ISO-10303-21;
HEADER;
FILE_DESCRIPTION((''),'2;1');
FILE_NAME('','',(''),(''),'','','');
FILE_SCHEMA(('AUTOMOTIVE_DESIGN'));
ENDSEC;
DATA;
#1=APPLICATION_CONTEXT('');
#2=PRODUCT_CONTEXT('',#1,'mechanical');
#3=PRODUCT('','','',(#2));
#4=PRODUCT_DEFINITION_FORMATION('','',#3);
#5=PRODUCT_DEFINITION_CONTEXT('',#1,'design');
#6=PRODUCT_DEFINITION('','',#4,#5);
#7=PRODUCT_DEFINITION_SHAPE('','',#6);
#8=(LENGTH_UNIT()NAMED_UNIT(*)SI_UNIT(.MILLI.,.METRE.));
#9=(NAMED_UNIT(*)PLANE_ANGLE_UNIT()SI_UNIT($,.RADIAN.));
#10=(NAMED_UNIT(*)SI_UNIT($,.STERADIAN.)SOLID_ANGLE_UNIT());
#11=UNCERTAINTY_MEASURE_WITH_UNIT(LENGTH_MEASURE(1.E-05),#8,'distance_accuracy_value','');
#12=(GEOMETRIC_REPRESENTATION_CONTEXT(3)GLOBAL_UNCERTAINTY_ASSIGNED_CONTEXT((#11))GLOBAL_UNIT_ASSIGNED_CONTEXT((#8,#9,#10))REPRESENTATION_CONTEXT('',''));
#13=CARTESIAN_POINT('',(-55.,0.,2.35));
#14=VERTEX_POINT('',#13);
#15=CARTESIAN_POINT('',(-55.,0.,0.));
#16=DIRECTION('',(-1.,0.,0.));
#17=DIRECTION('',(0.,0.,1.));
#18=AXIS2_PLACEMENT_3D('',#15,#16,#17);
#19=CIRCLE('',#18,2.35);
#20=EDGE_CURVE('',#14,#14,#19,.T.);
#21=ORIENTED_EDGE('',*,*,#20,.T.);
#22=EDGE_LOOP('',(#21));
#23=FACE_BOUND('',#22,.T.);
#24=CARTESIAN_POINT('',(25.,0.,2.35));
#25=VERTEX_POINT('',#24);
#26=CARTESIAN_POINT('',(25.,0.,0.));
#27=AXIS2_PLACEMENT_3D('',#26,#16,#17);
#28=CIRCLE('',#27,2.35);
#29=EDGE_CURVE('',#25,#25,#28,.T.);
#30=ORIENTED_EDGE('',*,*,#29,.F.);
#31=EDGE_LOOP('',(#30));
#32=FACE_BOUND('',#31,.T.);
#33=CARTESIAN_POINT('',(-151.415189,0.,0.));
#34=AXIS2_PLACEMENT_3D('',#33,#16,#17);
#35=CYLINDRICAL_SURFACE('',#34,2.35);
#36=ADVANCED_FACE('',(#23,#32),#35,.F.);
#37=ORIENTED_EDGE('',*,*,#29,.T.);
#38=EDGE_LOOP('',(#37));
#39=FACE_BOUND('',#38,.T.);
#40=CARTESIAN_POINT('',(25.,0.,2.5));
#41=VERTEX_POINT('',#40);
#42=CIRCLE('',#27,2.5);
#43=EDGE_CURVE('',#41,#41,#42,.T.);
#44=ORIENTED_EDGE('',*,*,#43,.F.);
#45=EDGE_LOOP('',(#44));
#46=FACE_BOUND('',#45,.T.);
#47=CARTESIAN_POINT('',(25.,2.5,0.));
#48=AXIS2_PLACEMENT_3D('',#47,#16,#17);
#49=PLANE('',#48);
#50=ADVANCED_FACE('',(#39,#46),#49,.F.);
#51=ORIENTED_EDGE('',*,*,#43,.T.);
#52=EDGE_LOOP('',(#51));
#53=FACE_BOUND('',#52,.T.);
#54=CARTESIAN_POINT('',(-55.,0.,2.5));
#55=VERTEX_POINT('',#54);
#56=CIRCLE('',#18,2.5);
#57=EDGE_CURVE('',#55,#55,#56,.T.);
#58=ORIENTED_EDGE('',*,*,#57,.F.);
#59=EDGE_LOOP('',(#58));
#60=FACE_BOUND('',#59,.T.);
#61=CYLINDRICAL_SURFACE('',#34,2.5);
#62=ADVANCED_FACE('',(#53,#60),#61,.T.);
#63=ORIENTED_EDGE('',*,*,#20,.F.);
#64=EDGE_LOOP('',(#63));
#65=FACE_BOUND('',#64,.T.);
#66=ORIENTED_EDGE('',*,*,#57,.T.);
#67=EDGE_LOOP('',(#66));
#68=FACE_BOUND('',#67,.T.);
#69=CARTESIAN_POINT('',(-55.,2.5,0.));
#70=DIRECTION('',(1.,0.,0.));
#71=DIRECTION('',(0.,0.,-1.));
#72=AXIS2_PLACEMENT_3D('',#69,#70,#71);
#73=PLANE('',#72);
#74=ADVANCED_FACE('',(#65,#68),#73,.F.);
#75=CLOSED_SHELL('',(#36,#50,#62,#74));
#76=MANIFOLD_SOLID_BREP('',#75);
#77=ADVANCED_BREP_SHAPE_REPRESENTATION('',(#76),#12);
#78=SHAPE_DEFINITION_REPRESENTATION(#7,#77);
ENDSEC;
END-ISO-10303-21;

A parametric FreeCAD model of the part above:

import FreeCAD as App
import Part
import Sketcher

V = App.Vector

doc = App.newDocument("Part")
body = doc.addObject("PartDesign::Body", "Body")

# Sketch on XY plane
sketch1 = doc.addObject("Sketcher::SketchObject", "Sketch")
body.addObject(sketch1)
sketch1.AttachmentSupport = (doc.XY_Plane, [""])
sketch1.MapMode = "FlatFace"
sketch1.addGeometry([
    Part.LineSegment(V(-55, 2.5, 0), V(-55, 2.35, 0)),
    Part.LineSegment(V(-55, 2.35, 0), V(25, 2.35, 0)),
    Part.LineSegment(V(25, 2.35, 0), V(25, 2.5, 0)),
    Part.LineSegment(V(25, 2.5, 0), V(-55, 2.5, 0)),
], False)
sketch1.addConstraint([
    Sketcher.Constraint("Coincident", 0, 2, 1, 1),
    Sketcher.Constraint("Coincident", 1, 2, 2, 1),
    Sketcher.Constraint("Coincident", 2, 2, 3, 1),
    Sketcher.Constraint("Coincident", 3, 2, 0, 1),
    Sketcher.Constraint("Vertical", 0),
    Sketcher.Constraint("Horizontal", 1),
    Sketcher.Constraint("Vertical", 2),
    Sketcher.Constraint("Horizontal", 3),
    Sketcher.Constraint("DistanceX", 1, 1, 1, 2, 80.0),
    Sketcher.Constraint("DistanceX", 0, 2, -1, 1, 55.0),
    Sketcher.Constraint("DistanceY", 0, 2, 0, 1, 0.15),
    Sketcher.Constraint("DistanceY", -1, 1, 2, 2, 2.5),
])
revolution = doc.addObject("PartDesign::Revolution", "Revolution")
body.addObject(revolution)
revolution.Profile = sketch1
revolution.ReferenceAxis = (sketch1, ["H_Axis"])
revolution.Angle = 360

doc.recompute()
